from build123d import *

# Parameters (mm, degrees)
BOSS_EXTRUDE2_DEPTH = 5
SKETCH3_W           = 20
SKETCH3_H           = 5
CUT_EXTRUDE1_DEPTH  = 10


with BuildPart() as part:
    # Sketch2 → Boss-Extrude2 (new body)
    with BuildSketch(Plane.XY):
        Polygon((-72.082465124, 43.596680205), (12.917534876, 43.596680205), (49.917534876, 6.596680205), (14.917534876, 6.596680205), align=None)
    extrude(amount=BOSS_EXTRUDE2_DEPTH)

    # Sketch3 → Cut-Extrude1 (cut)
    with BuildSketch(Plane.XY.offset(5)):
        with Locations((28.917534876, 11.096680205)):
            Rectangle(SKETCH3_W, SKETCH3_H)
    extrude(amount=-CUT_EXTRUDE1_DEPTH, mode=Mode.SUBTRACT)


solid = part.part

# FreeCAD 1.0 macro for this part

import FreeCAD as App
import Part
import Sketcher

V = App.Vector
Q = App.Units.Quantity

doc = App.newDocument("Part")
params = doc.addObject("Spreadsheet::Sheet", "Params")
for row, (alias, value) in enumerate([
    ("sketch1_width", "85 mm"),
    ("sketch1_width2", "35 mm"),
    ("pad1_length", "5 mm"),
    ("sketch2_width", "20 mm"),
    ("sketch2_height", "5 mm"),
    ("pocket1_length", "10 mm"),
], start=1):
    params.set(f"A{row}", alias)
    params.set(f"B{row}", "=" + value)
    params.setAlias(f"B{row}", alias)

body = doc.addObject("PartDesign::Body", "Body")

sketch1 = doc.addObject("Sketcher::SketchObject", "Sketch")
body.addObject(sketch1)
sketch1.AttachmentSupport = (doc.XY_Plane, [""])
sketch1.MapMode = "FlatFace"
sketch1.addGeometry(Part.LineSegment(V(12.917535, 43.59668, 0), V(-72.082465, 43.59668, 0)), False)
sketch1.addGeometry(Part.LineSegment(V(-72.082465, 43.59668, 0), V(14.917535, 6.59668, 0)), False)
sketch1.addGeometry(Part.LineSegment(V(14.917535, 6.59668, 0), V(49.917535, 6.59668, 0)), False)
sketch1.addGeometry(Part.LineSegment(V(49.917535, 6.59668, 0), V(12.917535, 43.59668, 0)), False)
sketch1.addConstraint(Sketcher.Constraint("Coincident", 0, 2, 1, 1))
sketch1.addConstraint(Sketcher.Constraint("Coincident", 1, 2, 2, 1))
sketch1.addConstraint(Sketcher.Constraint("Coincident", 2, 2, 3, 1))
sketch1.addConstraint(Sketcher.Constraint("Coincident", 3, 2, 0, 1))
sketch1.addConstraint(Sketcher.Constraint("Horizontal", 0))
sketch1.addConstraint(Sketcher.Constraint("Horizontal", 2))
sketch1.addConstraint(Sketcher.Constraint("DistanceX", 0, 2, 0, 1, 85.0))
sketch1.addConstraint(Sketcher.Constraint("DistanceX", 2, 1, 2, 2, 35.0))
sketch1.addConstraint(Sketcher.Constraint("Angle", 3, Q("135 deg")))
sketch1.addConstraint(Sketcher.Constraint("DistanceX", 0, 2, 1, 2, 87.0))
sketch1.addConstraint(Sketcher.Constraint("DistanceY", -1, 1, 0, 2, 43.59668))
sketch1.addConstraint(Sketcher.Constraint("DistanceX", 0, 2, -1, 1, 72.082465))
sketch1.setExpression("Constraints[6]", "Params.sketch1_width")
sketch1.setExpression("Constraints[7]", "Params.sketch1_width2")
pad1 = doc.addObject("PartDesign::Pad", "Pad")
body.addObject(pad1)
pad1.Profile = sketch1
pad1.setExpression("Length", "Params.pad1_length")

sketch2 = doc.addObject("Sketcher::SketchObject", "Sketch001")
body.addObject(sketch2)
sketch2.AttachmentSupport = (doc.XY_Plane, [""])
sketch2.MapMode = "FlatFace"
sketch2.AttachmentOffset = App.Placement(V(0, 0, 5), App.Rotation())
sketch2.addGeometry(Part.LineSegment(V(18.917535, 13.59668, 0), V(18.917535, 8.59668, 0)), False)
sketch2.addGeometry(Part.LineSegment(V(18.917535, 8.59668, 0), V(38.917535, 8.59668, 0)), False)
sketch2.addGeometry(Part.LineSegment(V(38.917535, 8.59668, 0), V(38.917535, 13.59668, 0)), False)
sketch2.addGeometry(Part.LineSegment(V(38.917535, 13.59668, 0), V(18.917535, 13.59668, 0)), False)
sketch2.addConstraint(Sketcher.Constraint("Coincident", 0, 2, 1, 1))
sketch2.addConstraint(Sketcher.Constraint("Coincident", 1, 2, 2, 1))
sketch2.addConstraint(Sketcher.Constraint("Coincident", 2, 2, 3, 1))
sketch2.addConstraint(Sketcher.Constraint("Coincident", 3, 2, 0, 1))
sketch2.addConstraint(Sketcher.Constraint("Vertical", 0))
sketch2.addConstraint(Sketcher.Constraint("Horizontal", 1))
sketch2.addConstraint(Sketcher.Constraint("Vertical", 2))
sketch2.addConstraint(Sketcher.Constraint("Horizontal", 3))
sketch2.addConstraint(Sketcher.Constraint("DistanceX", 1, 1, 1, 2, 20.0))
sketch2.addConstraint(Sketcher.Constraint("DistanceY", 0, 2, 0, 1, 5.0))
sketch2.addConstraint(Sketcher.Constraint("DistanceY", -1, 1, 0, 2, 8.59668))
sketch2.addConstraint(Sketcher.Constraint("DistanceX", -1, 1, 0, 2, 18.917535))
sketch2.setExpression("Constraints[8]", "Params.sketch2_width")
sketch2.setExpression("Constraints[9]", "Params.sketch2_height")
pocket1 = doc.addObject("PartDesign::Pocket", "Pocket")
body.addObject(pocket1)
pocket1.Profile = sketch2
pocket1.setExpression("Length", "Params.pocket1_length")

doc.recompute()
